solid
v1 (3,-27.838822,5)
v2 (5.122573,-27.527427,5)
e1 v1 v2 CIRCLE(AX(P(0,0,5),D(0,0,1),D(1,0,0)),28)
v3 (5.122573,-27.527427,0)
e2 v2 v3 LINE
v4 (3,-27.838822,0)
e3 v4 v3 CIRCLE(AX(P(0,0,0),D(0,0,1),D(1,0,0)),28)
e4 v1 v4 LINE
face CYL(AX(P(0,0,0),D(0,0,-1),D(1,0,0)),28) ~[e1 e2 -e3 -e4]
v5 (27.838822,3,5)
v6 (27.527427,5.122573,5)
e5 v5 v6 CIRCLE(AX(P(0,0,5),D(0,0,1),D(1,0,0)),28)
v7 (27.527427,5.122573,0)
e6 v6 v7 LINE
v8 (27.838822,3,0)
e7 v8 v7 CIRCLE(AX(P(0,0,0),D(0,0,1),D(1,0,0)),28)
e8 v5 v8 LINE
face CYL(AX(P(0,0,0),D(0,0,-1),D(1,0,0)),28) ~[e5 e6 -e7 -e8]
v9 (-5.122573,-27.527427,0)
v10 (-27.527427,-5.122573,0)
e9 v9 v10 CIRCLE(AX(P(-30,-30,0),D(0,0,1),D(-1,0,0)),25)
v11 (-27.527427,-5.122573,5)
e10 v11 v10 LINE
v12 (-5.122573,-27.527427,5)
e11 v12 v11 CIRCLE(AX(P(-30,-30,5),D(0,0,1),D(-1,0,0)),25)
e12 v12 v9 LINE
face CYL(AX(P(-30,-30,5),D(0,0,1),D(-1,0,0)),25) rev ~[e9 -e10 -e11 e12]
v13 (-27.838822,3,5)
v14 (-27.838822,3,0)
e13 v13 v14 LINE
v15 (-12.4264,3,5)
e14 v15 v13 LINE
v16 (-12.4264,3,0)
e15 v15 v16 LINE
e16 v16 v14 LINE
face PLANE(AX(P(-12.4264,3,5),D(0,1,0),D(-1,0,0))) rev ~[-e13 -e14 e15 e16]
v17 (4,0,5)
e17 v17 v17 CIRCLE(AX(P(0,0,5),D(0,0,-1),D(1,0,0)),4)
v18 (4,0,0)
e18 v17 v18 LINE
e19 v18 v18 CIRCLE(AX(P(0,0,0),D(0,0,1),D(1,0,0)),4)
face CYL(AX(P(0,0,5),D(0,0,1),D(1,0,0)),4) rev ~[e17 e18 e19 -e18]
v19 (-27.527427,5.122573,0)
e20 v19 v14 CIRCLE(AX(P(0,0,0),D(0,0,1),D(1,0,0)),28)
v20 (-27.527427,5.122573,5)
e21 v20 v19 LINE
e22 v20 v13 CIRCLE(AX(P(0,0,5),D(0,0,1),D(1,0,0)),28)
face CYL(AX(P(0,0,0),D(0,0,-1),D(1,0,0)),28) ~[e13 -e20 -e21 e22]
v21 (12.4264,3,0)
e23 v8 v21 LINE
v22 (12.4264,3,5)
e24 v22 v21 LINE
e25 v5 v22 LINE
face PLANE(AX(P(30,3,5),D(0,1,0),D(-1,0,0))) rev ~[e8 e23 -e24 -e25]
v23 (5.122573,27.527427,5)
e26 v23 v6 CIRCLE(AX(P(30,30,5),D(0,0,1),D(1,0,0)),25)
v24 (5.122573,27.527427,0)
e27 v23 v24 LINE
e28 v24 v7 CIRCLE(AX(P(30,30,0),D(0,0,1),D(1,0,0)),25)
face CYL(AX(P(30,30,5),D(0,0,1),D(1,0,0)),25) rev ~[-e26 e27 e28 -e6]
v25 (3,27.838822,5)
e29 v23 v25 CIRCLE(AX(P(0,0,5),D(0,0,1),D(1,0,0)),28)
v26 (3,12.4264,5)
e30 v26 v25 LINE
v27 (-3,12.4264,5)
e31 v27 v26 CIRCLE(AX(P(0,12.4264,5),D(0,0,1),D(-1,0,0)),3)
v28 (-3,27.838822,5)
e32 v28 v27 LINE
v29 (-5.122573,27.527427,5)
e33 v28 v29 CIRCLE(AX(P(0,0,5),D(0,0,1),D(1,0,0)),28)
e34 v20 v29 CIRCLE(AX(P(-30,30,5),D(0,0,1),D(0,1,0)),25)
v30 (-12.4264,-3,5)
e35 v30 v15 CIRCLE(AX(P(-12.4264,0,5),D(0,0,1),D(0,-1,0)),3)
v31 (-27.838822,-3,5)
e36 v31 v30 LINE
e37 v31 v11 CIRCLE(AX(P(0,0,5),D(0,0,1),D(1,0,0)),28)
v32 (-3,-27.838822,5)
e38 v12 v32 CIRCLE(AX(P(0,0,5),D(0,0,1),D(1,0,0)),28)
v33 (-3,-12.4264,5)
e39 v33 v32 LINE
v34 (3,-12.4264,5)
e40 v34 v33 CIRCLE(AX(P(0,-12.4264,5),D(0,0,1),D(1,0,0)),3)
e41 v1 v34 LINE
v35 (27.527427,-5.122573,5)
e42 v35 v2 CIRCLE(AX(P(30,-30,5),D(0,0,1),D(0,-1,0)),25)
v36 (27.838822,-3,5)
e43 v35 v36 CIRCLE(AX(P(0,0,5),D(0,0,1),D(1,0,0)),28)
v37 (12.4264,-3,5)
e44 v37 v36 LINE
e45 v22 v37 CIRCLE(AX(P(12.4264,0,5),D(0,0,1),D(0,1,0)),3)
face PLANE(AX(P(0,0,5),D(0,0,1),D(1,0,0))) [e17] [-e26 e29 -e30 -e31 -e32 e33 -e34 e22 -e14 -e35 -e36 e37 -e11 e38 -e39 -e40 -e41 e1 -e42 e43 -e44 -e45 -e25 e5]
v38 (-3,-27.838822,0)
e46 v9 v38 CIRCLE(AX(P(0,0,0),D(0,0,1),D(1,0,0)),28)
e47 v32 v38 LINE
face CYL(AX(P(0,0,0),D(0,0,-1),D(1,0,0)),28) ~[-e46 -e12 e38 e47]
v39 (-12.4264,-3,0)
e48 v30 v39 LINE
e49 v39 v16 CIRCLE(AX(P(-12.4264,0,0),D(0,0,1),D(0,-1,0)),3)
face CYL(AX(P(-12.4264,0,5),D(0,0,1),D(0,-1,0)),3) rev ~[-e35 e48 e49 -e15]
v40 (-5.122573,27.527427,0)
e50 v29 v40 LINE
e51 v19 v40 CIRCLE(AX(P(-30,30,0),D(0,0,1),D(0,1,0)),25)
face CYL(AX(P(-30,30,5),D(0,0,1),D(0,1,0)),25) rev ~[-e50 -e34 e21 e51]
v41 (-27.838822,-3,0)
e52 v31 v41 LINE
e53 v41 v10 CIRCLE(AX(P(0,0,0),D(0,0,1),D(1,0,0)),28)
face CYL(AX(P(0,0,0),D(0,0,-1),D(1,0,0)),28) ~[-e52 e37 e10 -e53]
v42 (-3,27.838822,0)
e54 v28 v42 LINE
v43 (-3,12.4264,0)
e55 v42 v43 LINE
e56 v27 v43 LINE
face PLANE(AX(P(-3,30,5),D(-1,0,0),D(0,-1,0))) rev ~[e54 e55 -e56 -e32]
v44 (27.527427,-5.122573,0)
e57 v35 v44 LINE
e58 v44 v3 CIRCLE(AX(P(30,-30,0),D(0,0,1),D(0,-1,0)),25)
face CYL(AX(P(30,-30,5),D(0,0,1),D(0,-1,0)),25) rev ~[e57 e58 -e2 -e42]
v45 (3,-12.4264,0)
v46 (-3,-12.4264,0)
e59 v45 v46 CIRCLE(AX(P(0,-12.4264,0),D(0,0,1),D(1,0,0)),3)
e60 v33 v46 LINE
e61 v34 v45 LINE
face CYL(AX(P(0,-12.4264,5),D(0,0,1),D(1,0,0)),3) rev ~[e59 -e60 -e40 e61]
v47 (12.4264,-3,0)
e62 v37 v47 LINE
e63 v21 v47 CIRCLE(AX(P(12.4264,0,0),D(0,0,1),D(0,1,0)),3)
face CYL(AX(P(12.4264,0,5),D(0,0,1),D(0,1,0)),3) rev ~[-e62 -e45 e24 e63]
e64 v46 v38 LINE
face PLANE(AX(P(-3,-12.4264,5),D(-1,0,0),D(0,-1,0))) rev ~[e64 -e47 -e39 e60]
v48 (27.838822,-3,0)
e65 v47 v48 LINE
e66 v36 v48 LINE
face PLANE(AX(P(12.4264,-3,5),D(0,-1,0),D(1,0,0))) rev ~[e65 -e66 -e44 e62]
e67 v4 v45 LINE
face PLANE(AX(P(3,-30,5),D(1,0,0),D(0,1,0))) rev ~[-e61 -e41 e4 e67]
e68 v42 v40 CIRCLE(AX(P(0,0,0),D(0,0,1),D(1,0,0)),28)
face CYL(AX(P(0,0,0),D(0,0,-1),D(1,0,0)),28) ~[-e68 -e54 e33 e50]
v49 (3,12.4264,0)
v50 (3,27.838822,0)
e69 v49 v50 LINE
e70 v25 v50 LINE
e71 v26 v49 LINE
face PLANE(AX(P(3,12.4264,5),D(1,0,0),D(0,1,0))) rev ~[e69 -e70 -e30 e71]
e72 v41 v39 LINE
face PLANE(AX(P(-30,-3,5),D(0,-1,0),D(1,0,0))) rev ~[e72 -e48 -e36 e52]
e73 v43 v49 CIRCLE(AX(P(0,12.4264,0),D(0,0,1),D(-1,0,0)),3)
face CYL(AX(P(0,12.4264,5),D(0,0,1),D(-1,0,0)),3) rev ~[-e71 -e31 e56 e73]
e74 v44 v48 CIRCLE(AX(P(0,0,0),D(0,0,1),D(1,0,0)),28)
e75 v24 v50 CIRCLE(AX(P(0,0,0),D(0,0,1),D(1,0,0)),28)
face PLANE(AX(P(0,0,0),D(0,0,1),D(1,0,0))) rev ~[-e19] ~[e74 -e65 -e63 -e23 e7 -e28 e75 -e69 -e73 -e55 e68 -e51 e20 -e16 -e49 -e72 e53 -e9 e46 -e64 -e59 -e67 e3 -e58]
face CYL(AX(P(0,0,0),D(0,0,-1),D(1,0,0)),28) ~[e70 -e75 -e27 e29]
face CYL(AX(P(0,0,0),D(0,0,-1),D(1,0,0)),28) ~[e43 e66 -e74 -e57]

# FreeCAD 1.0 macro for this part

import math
import FreeCAD as App
import Part
import Sketcher
from FreeCAD import Vector
Q = App.Units.Quantity

doc = App.newDocument("Part")
body = doc.addObject("PartDesign::Body", "Body")

sketch1 = body.newObject("Sketcher::SketchObject", "Sketch")
sketch1.AttachmentSupport = (doc.getObject("XY_Plane"), [""])
sketch1.MapMode = "FlatFace"
sketch1.addGeometry(Part.Circle(Vector(0, 0, 0), Vector(0, 0, 1), 28), False)
sketch1.addConstraint([
    Sketcher.Constraint("Coincident", 0, 3, -1, 1),
    Sketcher.Constraint("Diameter", 0, Q("56 mm")),
])
pad1 = body.newObject("PartDesign::Pad", "Pad")
pad1.Profile = sketch1
pad1.Length = 5

sketch2 = body.newObject("Sketcher::SketchObject", "Sketch001")
sketch2.AttachmentSupport = (doc.getObject("XY_Plane"), [""])
sketch2.MapMode = "FlatFace"
sketch2.AttachmentOffset = App.Placement(Vector(0, 0, 5), App.Rotation())
sketch2.addGeometry([
    Part.Circle(Vector(30, 30, 0), Vector(0, 0, 1), 25),
    Part.Circle(Vector(0, 0, 0), Vector(0, 0, 1), 4),
    Part.ArcOfCircle(Part.Circle(Vector(12.4, 0, 0), Vector(0, 0, 1), 3), math.radians(90), math.radians(270)),
    Part.LineSegment(Vector(12.4, -3, 0), Vector(30, -3, 0)),
    Part.ArcOfCircle(Part.Circle(Vector(30, 0, 0), Vector(0, 0, 1), 3), math.radians(-90), math.radians(90)),
    Part.LineSegment(Vector(30, 3, 0), Vector(12.4, 3, 0)),
], False)
sketch2.addConstraint([
    Sketcher.Constraint("Tangent", 2, 2, 3, 1),
    Sketcher.Constraint("Tangent", 3, 2, 4, 1),
    Sketcher.Constraint("Tangent", 4, 2, 5, 1),
    Sketcher.Constraint("Tangent", 5, 2, 2, 1),
    Sketcher.Constraint("Horizontal", 3),
    Sketcher.Constraint("Horizontal", 5),
    Sketcher.Constraint("Coincident", 1, 3, -1, 1),
    Sketcher.Constraint("PointOnObject", 2, 3, -1),
    Sketcher.Constraint("Vertical", 0, 3, 4, 3),
    Sketcher.Constraint("Diameter", 0, Q("50 mm")),
    Sketcher.Constraint("Diameter", 1, Q("8 mm")),
    Sketcher.Constraint("Radius", 2, Q("3 mm")),
    Sketcher.Constraint("DistanceX", -1, 1, 0, 3, Q("30 mm")),
    Sketcher.Constraint("DistanceY", -1, 1, 0, 3, Q("30 mm")),
    Sketcher.Constraint("DistanceX", 3, 1, 3, 2, Q("17.5736 mm")),
])
pocket1 = body.newObject("PartDesign::Pocket", "Pocket")
pocket1.Profile = sketch2
pocket1.Length = 5
doc.recompute()

polarpattern = body.newObject("PartDesign::PolarPattern", "PolarPattern")
polarpattern.Originals = [pocket1]
polarpattern.Axis = (doc.getObject("Z_Axis"), [""])
polarpattern.Angle = 360
polarpattern.Occurrences = 4
body.Tip = polarpattern

doc.recompute()
